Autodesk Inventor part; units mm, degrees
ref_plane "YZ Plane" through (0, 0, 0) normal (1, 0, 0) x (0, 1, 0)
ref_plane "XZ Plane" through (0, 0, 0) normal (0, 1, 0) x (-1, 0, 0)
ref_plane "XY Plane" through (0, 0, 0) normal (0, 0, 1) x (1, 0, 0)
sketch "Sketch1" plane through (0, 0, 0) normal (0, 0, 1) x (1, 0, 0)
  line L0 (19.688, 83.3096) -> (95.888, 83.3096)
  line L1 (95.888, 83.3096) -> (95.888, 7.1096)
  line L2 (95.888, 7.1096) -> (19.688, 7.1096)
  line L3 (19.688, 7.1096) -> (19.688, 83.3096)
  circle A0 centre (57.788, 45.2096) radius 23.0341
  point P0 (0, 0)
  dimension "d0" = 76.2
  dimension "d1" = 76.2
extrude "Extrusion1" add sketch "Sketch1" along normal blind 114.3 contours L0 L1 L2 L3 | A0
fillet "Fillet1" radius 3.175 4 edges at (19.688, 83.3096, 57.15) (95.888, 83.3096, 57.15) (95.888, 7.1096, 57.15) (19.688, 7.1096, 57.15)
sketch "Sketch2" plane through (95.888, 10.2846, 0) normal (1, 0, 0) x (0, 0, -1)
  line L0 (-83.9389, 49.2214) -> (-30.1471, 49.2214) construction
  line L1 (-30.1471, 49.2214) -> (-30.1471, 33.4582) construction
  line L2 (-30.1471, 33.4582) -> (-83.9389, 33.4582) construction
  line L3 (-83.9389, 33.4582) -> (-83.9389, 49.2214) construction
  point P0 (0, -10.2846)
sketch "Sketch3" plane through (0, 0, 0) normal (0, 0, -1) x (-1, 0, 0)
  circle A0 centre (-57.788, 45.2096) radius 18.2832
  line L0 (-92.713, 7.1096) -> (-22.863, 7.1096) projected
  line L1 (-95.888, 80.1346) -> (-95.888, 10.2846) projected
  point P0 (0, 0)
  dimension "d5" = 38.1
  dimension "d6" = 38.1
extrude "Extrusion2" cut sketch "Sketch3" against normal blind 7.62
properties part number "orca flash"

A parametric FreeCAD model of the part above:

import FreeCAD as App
import Part
import Sketcher

V = App.Vector
Q = App.Units.Quantity


def edges_at(feature, points):
    """Names of the edges that pass closest to the given points."""
    edges = feature.Shape.Edges
    near = lambda p: min(range(len(edges)), key=lambda i: edges[i].distToShape(Part.Vertex(*p))[0])
    return sorted({f"Edge{near(p) + 1}" for p in points})


def add_polygon(sketch, points):
    """Adds a closed chain of lines whose ends are joined by coincident constraints."""
    first, n = sketch.GeometryCount, len(points)
    for a, b in zip(points, points[1:] + points[:1]):
        sketch.addGeometry(Part.LineSegment(App.Vector(*a, 0), App.Vector(*b, 0)), False)
    for i in range(n):
        sketch.addConstraint(Sketcher.Constraint("Coincident", first + i, 2, first + (i + 1) % n, 1))

doc = App.newDocument("Part")
params = doc.addObject("Spreadsheet::Sheet", "Params")
for row, (alias, value) in enumerate([
    ("sketch1_width", "3 in"),
    ("pad1_length", "4.5 in"),
    ("fillet_radius", "0.125 in"),
    ("pocket1_length", "0.3 in"),
], start=1):
    params.set(f"A{row}", alias)
    params.set(f"B{row}", "=" + value)
    params.setAlias(f"B{row}", alias)

body = doc.addObject("PartDesign::Body", "Body")

# Sketch on XY plane
sketch1 = body.newObject("Sketcher::SketchObject", "Sketch")
sketch1.AttachmentSupport = (doc.getObject("XY_Plane"), [""])
sketch1.MapMode = "FlatFace"
add_polygon(sketch1, [(96, 83), (20, 83), (20, 7), (96, 7)])  # lines 0-3
sketch1.addConstraint(Sketcher.Constraint("Horizontal", 0))
sketch1.addConstraint(Sketcher.Constraint("Vertical", 1))
sketch1.addConstraint(Sketcher.Constraint("Horizontal", 2))
sketch1.addConstraint(Sketcher.Constraint("Vertical", 3))
sketch1.addConstraint(Sketcher.Constraint("Equal", 2, 1))
sketch1.addConstraint(Sketcher.Constraint("DistanceX", 0, 2, 0, 1, Q("3 in")))
sketch1.addConstraint(Sketcher.Constraint("DistanceY", -1, 1, 0, 2, Q("3.2799 in")))
sketch1.addConstraint(Sketcher.Constraint("DistanceX", -1, 1, 0, 2, 19.688))
sketch1.setExpression("Constraints[9]", "Params.sketch1_width")
pad1 = body.newObject("PartDesign::Pad", "Pad")
pad1.Profile = sketch1
pad1.setExpression("Length", "Params.pad1_length")
doc.recompute()

fillet = body.newObject("PartDesign::Fillet", "Fillet")
fillet.Base = (pad1, edges_at(pad1, [
    (19.688, 83.31, 57.15),
    (95.888, 83.31, 57.15),
    (95.888, 7.11, 57.15),
    (19.688, 7.11, 57.15),
]))
fillet.setExpression("Radius", "Params.fillet_radius")

# Sketch on XY plane
sketch2 = body.newObject("Sketcher::SketchObject", "Sketch001")
sketch2.AttachmentSupport = (doc.getObject("XY_Plane"), [""])
sketch2.MapMode = "FlatFace"
sketch2.addGeometry(Part.Circle(V(58, 45, 0), V(0, 0, 1), 18), False)
sketch2.addConstraint(Sketcher.Constraint("Diameter", 0, 36.5664))
sketch2.addConstraint(Sketcher.Constraint("DistanceY", -1, 1, 0, 3, Q("1.7799 in")))
sketch2.addConstraint(Sketcher.Constraint("DistanceX", -1, 1, 0, 3, 57.788))
pocket1 = body.newObject("PartDesign::Pocket", "Pocket")
pocket1.Profile = sketch2
pocket1.setExpression("Length", "Params.pocket1_length")
pocket1.Reversed = True

doc.recompute()
